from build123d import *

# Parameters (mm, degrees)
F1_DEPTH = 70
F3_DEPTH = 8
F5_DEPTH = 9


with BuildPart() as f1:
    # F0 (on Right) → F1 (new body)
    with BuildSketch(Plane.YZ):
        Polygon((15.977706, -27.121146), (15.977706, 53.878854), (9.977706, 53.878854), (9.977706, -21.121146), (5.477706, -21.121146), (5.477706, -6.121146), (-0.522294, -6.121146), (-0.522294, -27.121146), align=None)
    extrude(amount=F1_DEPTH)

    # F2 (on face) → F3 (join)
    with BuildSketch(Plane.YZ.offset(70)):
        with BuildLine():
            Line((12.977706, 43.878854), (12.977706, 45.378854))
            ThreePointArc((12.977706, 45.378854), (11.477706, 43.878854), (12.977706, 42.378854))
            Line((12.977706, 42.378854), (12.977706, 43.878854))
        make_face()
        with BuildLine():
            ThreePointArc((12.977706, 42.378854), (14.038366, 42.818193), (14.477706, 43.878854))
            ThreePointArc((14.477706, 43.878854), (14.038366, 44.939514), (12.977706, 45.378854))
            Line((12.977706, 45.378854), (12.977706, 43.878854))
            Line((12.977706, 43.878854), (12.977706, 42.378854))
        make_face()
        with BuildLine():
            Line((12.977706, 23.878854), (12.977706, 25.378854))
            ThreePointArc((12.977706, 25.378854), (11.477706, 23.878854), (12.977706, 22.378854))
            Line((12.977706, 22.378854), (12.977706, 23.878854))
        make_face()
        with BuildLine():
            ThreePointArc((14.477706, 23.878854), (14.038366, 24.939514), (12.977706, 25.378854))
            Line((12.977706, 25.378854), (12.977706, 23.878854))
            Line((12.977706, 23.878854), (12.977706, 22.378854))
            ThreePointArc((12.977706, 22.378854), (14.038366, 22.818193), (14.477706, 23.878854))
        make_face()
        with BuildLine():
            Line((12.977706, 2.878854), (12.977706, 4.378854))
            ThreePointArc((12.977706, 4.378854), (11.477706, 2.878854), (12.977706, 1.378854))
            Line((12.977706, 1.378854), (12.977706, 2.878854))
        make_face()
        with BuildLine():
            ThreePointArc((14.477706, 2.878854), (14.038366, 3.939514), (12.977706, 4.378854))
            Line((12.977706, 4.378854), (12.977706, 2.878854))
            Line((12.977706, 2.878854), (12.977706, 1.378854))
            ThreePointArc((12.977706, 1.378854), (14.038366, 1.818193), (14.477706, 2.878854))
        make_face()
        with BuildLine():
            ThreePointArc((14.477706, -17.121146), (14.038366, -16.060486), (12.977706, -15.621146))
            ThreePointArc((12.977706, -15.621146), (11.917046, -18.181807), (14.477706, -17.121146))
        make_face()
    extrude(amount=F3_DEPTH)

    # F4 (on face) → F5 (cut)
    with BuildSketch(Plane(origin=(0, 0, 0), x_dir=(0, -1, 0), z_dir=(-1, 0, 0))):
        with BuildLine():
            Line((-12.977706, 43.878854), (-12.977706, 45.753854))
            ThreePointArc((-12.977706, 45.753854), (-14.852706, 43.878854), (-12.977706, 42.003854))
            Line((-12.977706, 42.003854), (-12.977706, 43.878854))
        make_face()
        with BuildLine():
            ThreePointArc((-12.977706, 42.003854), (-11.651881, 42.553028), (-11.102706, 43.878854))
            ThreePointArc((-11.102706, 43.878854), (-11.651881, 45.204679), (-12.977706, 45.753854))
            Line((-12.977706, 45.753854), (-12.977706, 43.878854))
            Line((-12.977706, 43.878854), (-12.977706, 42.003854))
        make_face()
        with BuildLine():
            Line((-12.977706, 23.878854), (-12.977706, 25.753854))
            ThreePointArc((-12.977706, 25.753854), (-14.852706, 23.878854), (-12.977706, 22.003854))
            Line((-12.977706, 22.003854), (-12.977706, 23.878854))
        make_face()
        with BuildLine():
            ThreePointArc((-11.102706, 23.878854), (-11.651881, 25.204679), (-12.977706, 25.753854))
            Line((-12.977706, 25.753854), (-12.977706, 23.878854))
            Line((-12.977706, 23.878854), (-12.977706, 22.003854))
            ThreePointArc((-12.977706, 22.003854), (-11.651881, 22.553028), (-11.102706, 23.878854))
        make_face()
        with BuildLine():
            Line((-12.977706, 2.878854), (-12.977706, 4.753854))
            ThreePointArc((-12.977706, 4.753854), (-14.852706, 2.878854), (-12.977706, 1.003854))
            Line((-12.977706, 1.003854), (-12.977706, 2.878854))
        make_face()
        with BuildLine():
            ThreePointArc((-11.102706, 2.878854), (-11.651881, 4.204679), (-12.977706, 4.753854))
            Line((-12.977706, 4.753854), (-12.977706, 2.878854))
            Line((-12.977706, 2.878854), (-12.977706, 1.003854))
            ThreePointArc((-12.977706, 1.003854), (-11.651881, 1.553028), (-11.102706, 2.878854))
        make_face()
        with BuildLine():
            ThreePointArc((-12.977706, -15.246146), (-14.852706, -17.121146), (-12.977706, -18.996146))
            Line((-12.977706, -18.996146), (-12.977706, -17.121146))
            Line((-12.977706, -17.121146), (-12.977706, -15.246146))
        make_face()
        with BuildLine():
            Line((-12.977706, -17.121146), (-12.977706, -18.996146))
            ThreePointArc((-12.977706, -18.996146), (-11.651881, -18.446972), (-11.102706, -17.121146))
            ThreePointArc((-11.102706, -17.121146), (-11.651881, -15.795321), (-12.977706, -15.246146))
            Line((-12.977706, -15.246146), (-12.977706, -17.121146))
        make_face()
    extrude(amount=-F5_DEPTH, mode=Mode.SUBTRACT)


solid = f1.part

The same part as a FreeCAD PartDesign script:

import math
import FreeCAD as App
import Part
import Sketcher
from FreeCAD import Vector

doc = App.newDocument("Part")
body = doc.addObject("PartDesign::Body", "Body")

# Sketch on YZ plane
sketch1 = body.newObject("Sketcher::SketchObject", "Sketch")
sketch1.AttachmentSupport = (doc.getObject("YZ_Plane"), [""])
sketch1.MapMode = "FlatFace"
sketch1.addGeometry(Part.LineSegment(Vector(15.977706, -27.121146, 0), Vector(15.977706, 53.878854, 0)), False)
sketch1.addGeometry(Part.LineSegment(Vector(15.977706, 53.878854, 0), Vector(9.977706, 53.878854, 0)), False)
sketch1.addGeometry(Part.LineSegment(Vector(9.977706, 53.878854, 0), Vector(9.977706, -21.121146, 0)), False)
sketch1.addGeometry(Part.LineSegment(Vector(9.977706, -21.121146, 0), Vector(5.477706, -21.121146, 0)), False)
sketch1.addGeometry(Part.LineSegment(Vector(5.477706, -21.121146, 0), Vector(5.477706, -6.121146, 0)), False)
sketch1.addGeometry(Part.LineSegment(Vector(5.477706, -6.121146, 0), Vector(-0.522294, -6.121146, 0)), False)
sketch1.addGeometry(Part.LineSegment(Vector(-0.522294, -6.121146, 0), Vector(-0.522294, -27.121146, 0)), False)
sketch1.addGeometry(Part.LineSegment(Vector(-0.522294, -27.121146, 0), Vector(15.977706, -27.121146, 0)), False)
sketch1.addConstraint(Sketcher.Constraint("Coincident", 0, 2, 1, 1))
sketch1.addConstraint(Sketcher.Constraint("Coincident", 1, 2, 2, 1))
sketch1.addConstraint(Sketcher.Constraint("Coincident", 2, 2, 3, 1))
sketch1.addConstraint(Sketcher.Constraint("Coincident", 3, 2, 4, 1))
sketch1.addConstraint(Sketcher.Constraint("Coincident", 4, 2, 5, 1))
sketch1.addConstraint(Sketcher.Constraint("Coincident", 5, 2, 6, 1))
sketch1.addConstraint(Sketcher.Constraint("Coincident", 6, 2, 7, 1))
sketch1.addConstraint(Sketcher.Constraint("Coincident", 7, 2, 0, 1))
sketch1.addConstraint(Sketcher.Constraint("Vertical", 0))
sketch1.addConstraint(Sketcher.Constraint("Horizontal", 1))
sketch1.addConstraint(Sketcher.Constraint("Vertical", 2))
sketch1.addConstraint(Sketcher.Constraint("Horizontal", 3))
sketch1.addConstraint(Sketcher.Constraint("Vertical", 4))
sketch1.addConstraint(Sketcher.Constraint("Horizontal", 5))
sketch1.addConstraint(Sketcher.Constraint("Vertical", 6))
sketch1.addConstraint(Sketcher.Constraint("Horizontal", 7))
sketch1.addConstraint(Sketcher.Constraint("Equal", 1, 5))
sketch1.addConstraint(Sketcher.Constraint("DistanceX", 1, 2, 1, 1, 6.0))
sketch1.addConstraint(Sketcher.Constraint("DistanceY", 0, 1, 0, 2, 81.0))
sketch1.addConstraint(Sketcher.Constraint("DistanceY", 2, 2, 2, 1, 75.0))
sketch1.addConstraint(Sketcher.Constraint("DistanceY", 4, 1, 4, 2, 15.0))
sketch1.addConstraint(Sketcher.Constraint("DistanceX", 3, 2, 3, 1, 4.5))
sketch1.addConstraint(Sketcher.Constraint("DistanceX", -1, 1, 0, 2, 15.977706))
sketch1.addConstraint(Sketcher.Constraint("DistanceY", -1, 1, 0, 2, 53.878854))
pad1 = body.newObject("PartDesign::Pad", "Pad")
pad1.Profile = sketch1
pad1.Length = 70

# Sketch on YZ plane
sketch2 = body.newObject("Sketcher::SketchObject", "Sketch001")
sketch2.AttachmentSupport = (doc.getObject("YZ_Plane"), [""])
sketch2.MapMode = "FlatFace"
sketch2.AttachmentOffset = App.Placement(Vector(0, 0, 70), App.Rotation())
sketch2.addGeometry(Part.ArcOfCircle(Part.Circle(Vector(12.977706, 43.878854, 0), Vector(0, 0, 1), 1.5), math.radians(90), math.radians(270)), False)
sketch2.addGeometry(Part.ArcOfCircle(Part.Circle(Vector(12.977707, 43.878853, 0), Vector(0, 0, 1), 1.499999), math.radians(-90.000043), math.radians(0.000043)), False)
sketch2.addGeometry(Part.ArcOfCircle(Part.Circle(Vector(12.977705, 43.878853, 0), Vector(0, 0, 1), 1.500001), math.radians(0.000022), math.radians(89.999978)), False)
sketch2.addGeometry(Part.ArcOfCircle(Part.Circle(Vector(12.977706, 23.878854, 0), Vector(0, 0, 1), 1.5), math.radians(90), math.radians(270)), False)
sketch2.addGeometry(Part.ArcOfCircle(Part.Circle(Vector(12.977707, 23.878853, 0), Vector(0, 0, 1), 1.499999), math.radians(-90.000043), math.radians(0.000043)), False)
sketch2.addGeometry(Part.ArcOfCircle(Part.Circle(Vector(12.977705, 23.878853, 0), Vector(0, 0, 1), 1.500001), math.radians(0.000022), math.radians(89.999978)), False)
sketch2.addGeometry(Part.ArcOfCircle(Part.Circle(Vector(12.977706, 2.878854, 0), Vector(0, 0, 1), 1.5), math.radians(90), math.radians(270)), False)
sketch2.addGeometry(Part.ArcOfCircle(Part.Circle(Vector(12.977707, 2.878853, 0), Vector(0, 0, 1), 1.499999), math.radians(-90.000043), math.radians(0.000043)), False)
sketch2.addGeometry(Part.ArcOfCircle(Part.Circle(Vector(12.977705, 2.878853, 0), Vector(0, 0, 1), 1.500001), math.radians(0.000022), math.radians(89.999978)), False)
sketch2.addGeometry(Part.ArcOfCircle(Part.Circle(Vector(12.977705, -17.121147, 0), Vector(0, 0, 1), 1.500001), math.radians(0.000022), math.radians(89.999978)), False)
sketch2.addGeometry(Part.ArcOfCircle(Part.Circle(Vector(12.977706, -17.121146, 0), Vector(0, 0, 1), 1.5), math.radians(89.999993), math.radians(360.000007)), False)
sketch2.addConstraint(Sketcher.Constraint("Tangent", 0, 2, 1, 1))
sketch2.addConstraint(Sketcher.Constraint("Tangent", 1, 2, 2, 1))
sketch2.addConstraint(Sketcher.Constraint("Tangent", 2, 2, 0, 1))
sketch2.addConstraint(Sketcher.Constraint("Tangent", 3, 2, 4, 1))
sketch2.addConstraint(Sketcher.Constraint("Tangent", 4, 2, 5, 1))
sketch2.addConstraint(Sketcher.Constraint("Tangent", 5, 2, 3, 1))
sketch2.addConstraint(Sketcher.Constraint("Tangent", 6, 2, 7, 1))
sketch2.addConstraint(Sketcher.Constraint("Tangent", 7, 2, 8, 1))
sketch2.addConstraint(Sketcher.Constraint("Tangent", 8, 2, 6, 1))
sketch2.addConstraint(Sketcher.Constraint("Tangent", 9, 1, 10, 2))
sketch2.addConstraint(Sketcher.Constraint("Coincident", 10, 1, 9, 2))
sketch2.addConstraint(Sketcher.Constraint("Equal", 2, 3))
sketch2.addConstraint(Sketcher.Constraint("Equal", 5, 6))
sketch2.addConstraint(Sketcher.Constraint("Equal", 8, 9))
sketch2.addConstraint(Sketcher.Constraint("Horizontal", 2, 3, 1, 2))
sketch2.addConstraint(Sketcher.Constraint("Horizontal", 5, 3, 4, 2))
sketch2.addConstraint(Sketcher.Constraint("Horizontal", 8, 3, 7, 2))
sketch2.addConstraint(Sketcher.Constraint("Horizontal", 10, 3, 9, 1))
sketch2.addConstraint(Sketcher.Constraint("Vertical", 2, 3, 3, 3))
sketch2.addConstraint(Sketcher.Constraint("Vertical", 5, 3, 6, 3))
sketch2.addConstraint(Sketcher.Constraint("Vertical", 8, 3, 9, 3))
sketch2.addConstraint(Sketcher.Constraint("Vertical", 10, 3, 0, 2))
sketch2.addConstraint(Sketcher.Constraint("Vertical", 0, 2, 2, 2))
sketch2.addConstraint(Sketcher.Constraint("Vertical", 2, 2, 3, 2))
sketch2.addConstraint(Sketcher.Constraint("Vertical", 3, 2, 5, 2))
sketch2.addConstraint(Sketcher.Constraint("Vertical", 5, 2, 6, 2))
sketch2.addConstraint(Sketcher.Constraint("Vertical", 6, 2, 8, 2))
sketch2.addConstraint(Sketcher.Constraint("Vertical", 8, 2, 10, 1))
sketch2.addConstraint(Sketcher.Constraint("Radius", 0, 1.5))
sketch2.addConstraint(Sketcher.Constraint("DistanceY", 3, 3, 1, 3, 19.999999))
sketch2.addConstraint(Sketcher.Constraint("DistanceY", 6, 3, 4, 3, 20.999999))
sketch2.addConstraint(Sketcher.Constraint("DistanceY", 9, 3, 7, 3, 19.999999))
sketch2.addConstraint(Sketcher.Constraint("DistanceX", -1, 1, 0, 3, 12.977706))
sketch2.addConstraint(Sketcher.Constraint("DistanceY", -1, 1, 0, 3, 43.878854))
pad2 = body.newObject("PartDesign::Pad", "Pad001")
pad2.Profile = sketch2
pad2.Length = 8

# Sketch on YZ plane
sketch3 = body.newObject("Sketcher::SketchObject", "Sketch002")
sketch3.AttachmentSupport = (doc.getObject("YZ_Plane"), [""])
sketch3.MapMode = "FlatFace"
sketch3.addGeometry(Part.ArcOfCircle(Part.Circle(Vector(12.977706, 43.878854, 0), Vector(0, 0, 1), 1.875), math.radians(-90), math.radians(90)), False)
sketch3.addGeometry(Part.ArcOfCircle(Part.Circle(Vector(12.977705, 43.878853, 0), Vector(0, 0, 1), 1.874999), math.radians(179.99997), math.radians(270.00003)), False)
sketch3.addGeometry(Part.ArcOfCircle(Part.Circle(Vector(12.977707, 43.878853, 0), Vector(0, 0, 1), 1.875001), math.radians(90.000022), math.radians(179.999978)), False)
sketch3.addGeometry(Part.ArcOfCircle(Part.Circle(Vector(12.977706, 23.878854, 0), Vector(0, 0, 1), 1.875), math.radians(-90), math.radians(90)), False)
sketch3.addGeometry(Part.ArcOfCircle(Part.Circle(Vector(12.977705, 23.878853, 0), Vector(0, 0, 1), 1.874999), math.radians(179.99997), math.radians(270.00003)), False)
sketch3.addGeometry(Part.ArcOfCircle(Part.Circle(Vector(12.977707, 23.878853, 0), Vector(0, 0, 1), 1.875001), math.radians(90.000022), math.radians(179.999978)), False)
sketch3.addGeometry(Part.ArcOfCircle(Part.Circle(Vector(12.977706, 2.878854, 0), Vector(0, 0, 1), 1.875), math.radians(-90), math.radians(90)), False)
sketch3.addGeometry(Part.ArcOfCircle(Part.Circle(Vector(12.977705, 2.878853, 0), Vector(0, 0, 1), 1.874999), math.radians(179.99997), math.radians(270.00003)), False)
sketch3.addGeometry(Part.ArcOfCircle(Part.Circle(Vector(12.977707, 2.878853, 0), Vector(0, 0, 1), 1.875001), math.radians(90.000022), math.radians(179.999978)), False)
sketch3.addGeometry(Part.ArcOfCircle(Part.Circle(Vector(12.977706, -17.121146, 0), Vector(0, 0, 1), 1.875), math.radians(-90), math.radians(90)), False)
sketch3.addGeometry(Part.ArcOfCircle(Part.Circle(Vector(12.977705, -17.121147, 0), Vector(0, 0, 1), 1.874999), math.radians(179.99997), math.radians(270.00003)), False)
sketch3.addGeometry(Part.ArcOfCircle(Part.Circle(Vector(12.977707, -17.121147, 0), Vector(0, 0, 1), 1.875001), math.radians(90.000022), math.radians(179.999978)), False)
sketch3.addConstraint(Sketcher.Constraint("Tangent", 0, 1, 1, 2))
sketch3.addConstraint(Sketcher.Constraint("Tangent", 1, 1, 2, 2))
sketch3.addConstraint(Sketcher.Constraint("Tangent", 2, 1, 0, 2))
sketch3.addConstraint(Sketcher.Constraint("Tangent", 3, 1, 4, 2))
sketch3.addConstraint(Sketcher.Constraint("Tangent", 4, 1, 5, 2))
sketch3.addConstraint(Sketcher.Constraint("Tangent", 5, 1, 3, 2))
sketch3.addConstraint(Sketcher.Constraint("Tangent", 6, 1, 7, 2))
sketch3.addConstraint(Sketcher.Constraint("Tangent", 7, 1, 8, 2))
sketch3.addConstraint(Sketcher.Constraint("Tangent", 8, 1, 6, 2))
sketch3.addConstraint(Sketcher.Constraint("Tangent", 9, 1, 10, 2))
sketch3.addConstraint(Sketcher.Constraint("Tangent", 10, 1, 11, 2))
sketch3.addConstraint(Sketcher.Constraint("Tangent", 11, 1, 9, 2))
sketch3.addConstraint(Sketcher.Constraint("Equal", 2, 3))
sketch3.addConstraint(Sketcher.Constraint("Equal", 5, 6))
sketch3.addConstraint(Sketcher.Constraint("Equal", 8, 9))
sketch3.addConstraint(Sketcher.Constraint("Horizontal", 2, 3, 1, 1))
sketch3.addConstraint(Sketcher.Constraint("Horizontal", 5, 3, 4, 1))
sketch3.addConstraint(Sketcher.Constraint("Horizontal", 8, 3, 7, 1))
sketch3.addConstraint(Sketcher.Constraint("Horizontal", 11, 3, 10, 1))
sketch3.addConstraint(Sketcher.Constraint("Vertical", 2, 3, 3, 3))
sketch3.addConstraint(Sketcher.Constraint("Vertical", 5, 3, 6, 3))
sketch3.addConstraint(Sketcher.Constraint("Vertical", 8, 3, 9, 3))
sketch3.addConstraint(Sketcher.Constraint("Vertical", 11, 3, 0, 1))
sketch3.addConstraint(Sketcher.Constraint("Vertical", 0, 1, 2, 1))
sketch3.addConstraint(Sketcher.Constraint("Vertical", 2, 1, 3, 1))
sketch3.addConstraint(Sketcher.Constraint("Vertical", 3, 1, 5, 1))
sketch3.addConstraint(Sketcher.Constraint("Vertical", 5, 1, 6, 1))
sketch3.addConstraint(Sketcher.Constraint("Vertical", 6, 1, 8, 1))
sketch3.addConstraint(Sketcher.Constraint("Vertical", 8, 1, 9, 1))
sketch3.addConstraint(Sketcher.Constraint("Vertical", 9, 1, 11, 1))
sketch3.addConstraint(Sketcher.Constraint("Radius", 0, 1.875))
sketch3.addConstraint(Sketcher.Constraint("DistanceY", 3, 3, 1, 3, 19.999999))
sketch3.addConstraint(Sketcher.Constraint("DistanceY", 6, 3, 4, 3, 20.999999))
sketch3.addConstraint(Sketcher.Constraint("DistanceY", 9, 3, 7, 3, 19.999999))
sketch3.addConstraint(Sketcher.Constraint("DistanceX", -1, 1, 0, 3, 12.977706))
sketch3.addConstraint(Sketcher.Constraint("DistanceY", -1, 1, 0, 3, 43.878854))
pocket1 = body.newObject("PartDesign::Pocket", "Pocket")
pocket1.Profile = sketch3
pocket1.Length = 9
pocket1.Reversed = True

doc.recompute()
